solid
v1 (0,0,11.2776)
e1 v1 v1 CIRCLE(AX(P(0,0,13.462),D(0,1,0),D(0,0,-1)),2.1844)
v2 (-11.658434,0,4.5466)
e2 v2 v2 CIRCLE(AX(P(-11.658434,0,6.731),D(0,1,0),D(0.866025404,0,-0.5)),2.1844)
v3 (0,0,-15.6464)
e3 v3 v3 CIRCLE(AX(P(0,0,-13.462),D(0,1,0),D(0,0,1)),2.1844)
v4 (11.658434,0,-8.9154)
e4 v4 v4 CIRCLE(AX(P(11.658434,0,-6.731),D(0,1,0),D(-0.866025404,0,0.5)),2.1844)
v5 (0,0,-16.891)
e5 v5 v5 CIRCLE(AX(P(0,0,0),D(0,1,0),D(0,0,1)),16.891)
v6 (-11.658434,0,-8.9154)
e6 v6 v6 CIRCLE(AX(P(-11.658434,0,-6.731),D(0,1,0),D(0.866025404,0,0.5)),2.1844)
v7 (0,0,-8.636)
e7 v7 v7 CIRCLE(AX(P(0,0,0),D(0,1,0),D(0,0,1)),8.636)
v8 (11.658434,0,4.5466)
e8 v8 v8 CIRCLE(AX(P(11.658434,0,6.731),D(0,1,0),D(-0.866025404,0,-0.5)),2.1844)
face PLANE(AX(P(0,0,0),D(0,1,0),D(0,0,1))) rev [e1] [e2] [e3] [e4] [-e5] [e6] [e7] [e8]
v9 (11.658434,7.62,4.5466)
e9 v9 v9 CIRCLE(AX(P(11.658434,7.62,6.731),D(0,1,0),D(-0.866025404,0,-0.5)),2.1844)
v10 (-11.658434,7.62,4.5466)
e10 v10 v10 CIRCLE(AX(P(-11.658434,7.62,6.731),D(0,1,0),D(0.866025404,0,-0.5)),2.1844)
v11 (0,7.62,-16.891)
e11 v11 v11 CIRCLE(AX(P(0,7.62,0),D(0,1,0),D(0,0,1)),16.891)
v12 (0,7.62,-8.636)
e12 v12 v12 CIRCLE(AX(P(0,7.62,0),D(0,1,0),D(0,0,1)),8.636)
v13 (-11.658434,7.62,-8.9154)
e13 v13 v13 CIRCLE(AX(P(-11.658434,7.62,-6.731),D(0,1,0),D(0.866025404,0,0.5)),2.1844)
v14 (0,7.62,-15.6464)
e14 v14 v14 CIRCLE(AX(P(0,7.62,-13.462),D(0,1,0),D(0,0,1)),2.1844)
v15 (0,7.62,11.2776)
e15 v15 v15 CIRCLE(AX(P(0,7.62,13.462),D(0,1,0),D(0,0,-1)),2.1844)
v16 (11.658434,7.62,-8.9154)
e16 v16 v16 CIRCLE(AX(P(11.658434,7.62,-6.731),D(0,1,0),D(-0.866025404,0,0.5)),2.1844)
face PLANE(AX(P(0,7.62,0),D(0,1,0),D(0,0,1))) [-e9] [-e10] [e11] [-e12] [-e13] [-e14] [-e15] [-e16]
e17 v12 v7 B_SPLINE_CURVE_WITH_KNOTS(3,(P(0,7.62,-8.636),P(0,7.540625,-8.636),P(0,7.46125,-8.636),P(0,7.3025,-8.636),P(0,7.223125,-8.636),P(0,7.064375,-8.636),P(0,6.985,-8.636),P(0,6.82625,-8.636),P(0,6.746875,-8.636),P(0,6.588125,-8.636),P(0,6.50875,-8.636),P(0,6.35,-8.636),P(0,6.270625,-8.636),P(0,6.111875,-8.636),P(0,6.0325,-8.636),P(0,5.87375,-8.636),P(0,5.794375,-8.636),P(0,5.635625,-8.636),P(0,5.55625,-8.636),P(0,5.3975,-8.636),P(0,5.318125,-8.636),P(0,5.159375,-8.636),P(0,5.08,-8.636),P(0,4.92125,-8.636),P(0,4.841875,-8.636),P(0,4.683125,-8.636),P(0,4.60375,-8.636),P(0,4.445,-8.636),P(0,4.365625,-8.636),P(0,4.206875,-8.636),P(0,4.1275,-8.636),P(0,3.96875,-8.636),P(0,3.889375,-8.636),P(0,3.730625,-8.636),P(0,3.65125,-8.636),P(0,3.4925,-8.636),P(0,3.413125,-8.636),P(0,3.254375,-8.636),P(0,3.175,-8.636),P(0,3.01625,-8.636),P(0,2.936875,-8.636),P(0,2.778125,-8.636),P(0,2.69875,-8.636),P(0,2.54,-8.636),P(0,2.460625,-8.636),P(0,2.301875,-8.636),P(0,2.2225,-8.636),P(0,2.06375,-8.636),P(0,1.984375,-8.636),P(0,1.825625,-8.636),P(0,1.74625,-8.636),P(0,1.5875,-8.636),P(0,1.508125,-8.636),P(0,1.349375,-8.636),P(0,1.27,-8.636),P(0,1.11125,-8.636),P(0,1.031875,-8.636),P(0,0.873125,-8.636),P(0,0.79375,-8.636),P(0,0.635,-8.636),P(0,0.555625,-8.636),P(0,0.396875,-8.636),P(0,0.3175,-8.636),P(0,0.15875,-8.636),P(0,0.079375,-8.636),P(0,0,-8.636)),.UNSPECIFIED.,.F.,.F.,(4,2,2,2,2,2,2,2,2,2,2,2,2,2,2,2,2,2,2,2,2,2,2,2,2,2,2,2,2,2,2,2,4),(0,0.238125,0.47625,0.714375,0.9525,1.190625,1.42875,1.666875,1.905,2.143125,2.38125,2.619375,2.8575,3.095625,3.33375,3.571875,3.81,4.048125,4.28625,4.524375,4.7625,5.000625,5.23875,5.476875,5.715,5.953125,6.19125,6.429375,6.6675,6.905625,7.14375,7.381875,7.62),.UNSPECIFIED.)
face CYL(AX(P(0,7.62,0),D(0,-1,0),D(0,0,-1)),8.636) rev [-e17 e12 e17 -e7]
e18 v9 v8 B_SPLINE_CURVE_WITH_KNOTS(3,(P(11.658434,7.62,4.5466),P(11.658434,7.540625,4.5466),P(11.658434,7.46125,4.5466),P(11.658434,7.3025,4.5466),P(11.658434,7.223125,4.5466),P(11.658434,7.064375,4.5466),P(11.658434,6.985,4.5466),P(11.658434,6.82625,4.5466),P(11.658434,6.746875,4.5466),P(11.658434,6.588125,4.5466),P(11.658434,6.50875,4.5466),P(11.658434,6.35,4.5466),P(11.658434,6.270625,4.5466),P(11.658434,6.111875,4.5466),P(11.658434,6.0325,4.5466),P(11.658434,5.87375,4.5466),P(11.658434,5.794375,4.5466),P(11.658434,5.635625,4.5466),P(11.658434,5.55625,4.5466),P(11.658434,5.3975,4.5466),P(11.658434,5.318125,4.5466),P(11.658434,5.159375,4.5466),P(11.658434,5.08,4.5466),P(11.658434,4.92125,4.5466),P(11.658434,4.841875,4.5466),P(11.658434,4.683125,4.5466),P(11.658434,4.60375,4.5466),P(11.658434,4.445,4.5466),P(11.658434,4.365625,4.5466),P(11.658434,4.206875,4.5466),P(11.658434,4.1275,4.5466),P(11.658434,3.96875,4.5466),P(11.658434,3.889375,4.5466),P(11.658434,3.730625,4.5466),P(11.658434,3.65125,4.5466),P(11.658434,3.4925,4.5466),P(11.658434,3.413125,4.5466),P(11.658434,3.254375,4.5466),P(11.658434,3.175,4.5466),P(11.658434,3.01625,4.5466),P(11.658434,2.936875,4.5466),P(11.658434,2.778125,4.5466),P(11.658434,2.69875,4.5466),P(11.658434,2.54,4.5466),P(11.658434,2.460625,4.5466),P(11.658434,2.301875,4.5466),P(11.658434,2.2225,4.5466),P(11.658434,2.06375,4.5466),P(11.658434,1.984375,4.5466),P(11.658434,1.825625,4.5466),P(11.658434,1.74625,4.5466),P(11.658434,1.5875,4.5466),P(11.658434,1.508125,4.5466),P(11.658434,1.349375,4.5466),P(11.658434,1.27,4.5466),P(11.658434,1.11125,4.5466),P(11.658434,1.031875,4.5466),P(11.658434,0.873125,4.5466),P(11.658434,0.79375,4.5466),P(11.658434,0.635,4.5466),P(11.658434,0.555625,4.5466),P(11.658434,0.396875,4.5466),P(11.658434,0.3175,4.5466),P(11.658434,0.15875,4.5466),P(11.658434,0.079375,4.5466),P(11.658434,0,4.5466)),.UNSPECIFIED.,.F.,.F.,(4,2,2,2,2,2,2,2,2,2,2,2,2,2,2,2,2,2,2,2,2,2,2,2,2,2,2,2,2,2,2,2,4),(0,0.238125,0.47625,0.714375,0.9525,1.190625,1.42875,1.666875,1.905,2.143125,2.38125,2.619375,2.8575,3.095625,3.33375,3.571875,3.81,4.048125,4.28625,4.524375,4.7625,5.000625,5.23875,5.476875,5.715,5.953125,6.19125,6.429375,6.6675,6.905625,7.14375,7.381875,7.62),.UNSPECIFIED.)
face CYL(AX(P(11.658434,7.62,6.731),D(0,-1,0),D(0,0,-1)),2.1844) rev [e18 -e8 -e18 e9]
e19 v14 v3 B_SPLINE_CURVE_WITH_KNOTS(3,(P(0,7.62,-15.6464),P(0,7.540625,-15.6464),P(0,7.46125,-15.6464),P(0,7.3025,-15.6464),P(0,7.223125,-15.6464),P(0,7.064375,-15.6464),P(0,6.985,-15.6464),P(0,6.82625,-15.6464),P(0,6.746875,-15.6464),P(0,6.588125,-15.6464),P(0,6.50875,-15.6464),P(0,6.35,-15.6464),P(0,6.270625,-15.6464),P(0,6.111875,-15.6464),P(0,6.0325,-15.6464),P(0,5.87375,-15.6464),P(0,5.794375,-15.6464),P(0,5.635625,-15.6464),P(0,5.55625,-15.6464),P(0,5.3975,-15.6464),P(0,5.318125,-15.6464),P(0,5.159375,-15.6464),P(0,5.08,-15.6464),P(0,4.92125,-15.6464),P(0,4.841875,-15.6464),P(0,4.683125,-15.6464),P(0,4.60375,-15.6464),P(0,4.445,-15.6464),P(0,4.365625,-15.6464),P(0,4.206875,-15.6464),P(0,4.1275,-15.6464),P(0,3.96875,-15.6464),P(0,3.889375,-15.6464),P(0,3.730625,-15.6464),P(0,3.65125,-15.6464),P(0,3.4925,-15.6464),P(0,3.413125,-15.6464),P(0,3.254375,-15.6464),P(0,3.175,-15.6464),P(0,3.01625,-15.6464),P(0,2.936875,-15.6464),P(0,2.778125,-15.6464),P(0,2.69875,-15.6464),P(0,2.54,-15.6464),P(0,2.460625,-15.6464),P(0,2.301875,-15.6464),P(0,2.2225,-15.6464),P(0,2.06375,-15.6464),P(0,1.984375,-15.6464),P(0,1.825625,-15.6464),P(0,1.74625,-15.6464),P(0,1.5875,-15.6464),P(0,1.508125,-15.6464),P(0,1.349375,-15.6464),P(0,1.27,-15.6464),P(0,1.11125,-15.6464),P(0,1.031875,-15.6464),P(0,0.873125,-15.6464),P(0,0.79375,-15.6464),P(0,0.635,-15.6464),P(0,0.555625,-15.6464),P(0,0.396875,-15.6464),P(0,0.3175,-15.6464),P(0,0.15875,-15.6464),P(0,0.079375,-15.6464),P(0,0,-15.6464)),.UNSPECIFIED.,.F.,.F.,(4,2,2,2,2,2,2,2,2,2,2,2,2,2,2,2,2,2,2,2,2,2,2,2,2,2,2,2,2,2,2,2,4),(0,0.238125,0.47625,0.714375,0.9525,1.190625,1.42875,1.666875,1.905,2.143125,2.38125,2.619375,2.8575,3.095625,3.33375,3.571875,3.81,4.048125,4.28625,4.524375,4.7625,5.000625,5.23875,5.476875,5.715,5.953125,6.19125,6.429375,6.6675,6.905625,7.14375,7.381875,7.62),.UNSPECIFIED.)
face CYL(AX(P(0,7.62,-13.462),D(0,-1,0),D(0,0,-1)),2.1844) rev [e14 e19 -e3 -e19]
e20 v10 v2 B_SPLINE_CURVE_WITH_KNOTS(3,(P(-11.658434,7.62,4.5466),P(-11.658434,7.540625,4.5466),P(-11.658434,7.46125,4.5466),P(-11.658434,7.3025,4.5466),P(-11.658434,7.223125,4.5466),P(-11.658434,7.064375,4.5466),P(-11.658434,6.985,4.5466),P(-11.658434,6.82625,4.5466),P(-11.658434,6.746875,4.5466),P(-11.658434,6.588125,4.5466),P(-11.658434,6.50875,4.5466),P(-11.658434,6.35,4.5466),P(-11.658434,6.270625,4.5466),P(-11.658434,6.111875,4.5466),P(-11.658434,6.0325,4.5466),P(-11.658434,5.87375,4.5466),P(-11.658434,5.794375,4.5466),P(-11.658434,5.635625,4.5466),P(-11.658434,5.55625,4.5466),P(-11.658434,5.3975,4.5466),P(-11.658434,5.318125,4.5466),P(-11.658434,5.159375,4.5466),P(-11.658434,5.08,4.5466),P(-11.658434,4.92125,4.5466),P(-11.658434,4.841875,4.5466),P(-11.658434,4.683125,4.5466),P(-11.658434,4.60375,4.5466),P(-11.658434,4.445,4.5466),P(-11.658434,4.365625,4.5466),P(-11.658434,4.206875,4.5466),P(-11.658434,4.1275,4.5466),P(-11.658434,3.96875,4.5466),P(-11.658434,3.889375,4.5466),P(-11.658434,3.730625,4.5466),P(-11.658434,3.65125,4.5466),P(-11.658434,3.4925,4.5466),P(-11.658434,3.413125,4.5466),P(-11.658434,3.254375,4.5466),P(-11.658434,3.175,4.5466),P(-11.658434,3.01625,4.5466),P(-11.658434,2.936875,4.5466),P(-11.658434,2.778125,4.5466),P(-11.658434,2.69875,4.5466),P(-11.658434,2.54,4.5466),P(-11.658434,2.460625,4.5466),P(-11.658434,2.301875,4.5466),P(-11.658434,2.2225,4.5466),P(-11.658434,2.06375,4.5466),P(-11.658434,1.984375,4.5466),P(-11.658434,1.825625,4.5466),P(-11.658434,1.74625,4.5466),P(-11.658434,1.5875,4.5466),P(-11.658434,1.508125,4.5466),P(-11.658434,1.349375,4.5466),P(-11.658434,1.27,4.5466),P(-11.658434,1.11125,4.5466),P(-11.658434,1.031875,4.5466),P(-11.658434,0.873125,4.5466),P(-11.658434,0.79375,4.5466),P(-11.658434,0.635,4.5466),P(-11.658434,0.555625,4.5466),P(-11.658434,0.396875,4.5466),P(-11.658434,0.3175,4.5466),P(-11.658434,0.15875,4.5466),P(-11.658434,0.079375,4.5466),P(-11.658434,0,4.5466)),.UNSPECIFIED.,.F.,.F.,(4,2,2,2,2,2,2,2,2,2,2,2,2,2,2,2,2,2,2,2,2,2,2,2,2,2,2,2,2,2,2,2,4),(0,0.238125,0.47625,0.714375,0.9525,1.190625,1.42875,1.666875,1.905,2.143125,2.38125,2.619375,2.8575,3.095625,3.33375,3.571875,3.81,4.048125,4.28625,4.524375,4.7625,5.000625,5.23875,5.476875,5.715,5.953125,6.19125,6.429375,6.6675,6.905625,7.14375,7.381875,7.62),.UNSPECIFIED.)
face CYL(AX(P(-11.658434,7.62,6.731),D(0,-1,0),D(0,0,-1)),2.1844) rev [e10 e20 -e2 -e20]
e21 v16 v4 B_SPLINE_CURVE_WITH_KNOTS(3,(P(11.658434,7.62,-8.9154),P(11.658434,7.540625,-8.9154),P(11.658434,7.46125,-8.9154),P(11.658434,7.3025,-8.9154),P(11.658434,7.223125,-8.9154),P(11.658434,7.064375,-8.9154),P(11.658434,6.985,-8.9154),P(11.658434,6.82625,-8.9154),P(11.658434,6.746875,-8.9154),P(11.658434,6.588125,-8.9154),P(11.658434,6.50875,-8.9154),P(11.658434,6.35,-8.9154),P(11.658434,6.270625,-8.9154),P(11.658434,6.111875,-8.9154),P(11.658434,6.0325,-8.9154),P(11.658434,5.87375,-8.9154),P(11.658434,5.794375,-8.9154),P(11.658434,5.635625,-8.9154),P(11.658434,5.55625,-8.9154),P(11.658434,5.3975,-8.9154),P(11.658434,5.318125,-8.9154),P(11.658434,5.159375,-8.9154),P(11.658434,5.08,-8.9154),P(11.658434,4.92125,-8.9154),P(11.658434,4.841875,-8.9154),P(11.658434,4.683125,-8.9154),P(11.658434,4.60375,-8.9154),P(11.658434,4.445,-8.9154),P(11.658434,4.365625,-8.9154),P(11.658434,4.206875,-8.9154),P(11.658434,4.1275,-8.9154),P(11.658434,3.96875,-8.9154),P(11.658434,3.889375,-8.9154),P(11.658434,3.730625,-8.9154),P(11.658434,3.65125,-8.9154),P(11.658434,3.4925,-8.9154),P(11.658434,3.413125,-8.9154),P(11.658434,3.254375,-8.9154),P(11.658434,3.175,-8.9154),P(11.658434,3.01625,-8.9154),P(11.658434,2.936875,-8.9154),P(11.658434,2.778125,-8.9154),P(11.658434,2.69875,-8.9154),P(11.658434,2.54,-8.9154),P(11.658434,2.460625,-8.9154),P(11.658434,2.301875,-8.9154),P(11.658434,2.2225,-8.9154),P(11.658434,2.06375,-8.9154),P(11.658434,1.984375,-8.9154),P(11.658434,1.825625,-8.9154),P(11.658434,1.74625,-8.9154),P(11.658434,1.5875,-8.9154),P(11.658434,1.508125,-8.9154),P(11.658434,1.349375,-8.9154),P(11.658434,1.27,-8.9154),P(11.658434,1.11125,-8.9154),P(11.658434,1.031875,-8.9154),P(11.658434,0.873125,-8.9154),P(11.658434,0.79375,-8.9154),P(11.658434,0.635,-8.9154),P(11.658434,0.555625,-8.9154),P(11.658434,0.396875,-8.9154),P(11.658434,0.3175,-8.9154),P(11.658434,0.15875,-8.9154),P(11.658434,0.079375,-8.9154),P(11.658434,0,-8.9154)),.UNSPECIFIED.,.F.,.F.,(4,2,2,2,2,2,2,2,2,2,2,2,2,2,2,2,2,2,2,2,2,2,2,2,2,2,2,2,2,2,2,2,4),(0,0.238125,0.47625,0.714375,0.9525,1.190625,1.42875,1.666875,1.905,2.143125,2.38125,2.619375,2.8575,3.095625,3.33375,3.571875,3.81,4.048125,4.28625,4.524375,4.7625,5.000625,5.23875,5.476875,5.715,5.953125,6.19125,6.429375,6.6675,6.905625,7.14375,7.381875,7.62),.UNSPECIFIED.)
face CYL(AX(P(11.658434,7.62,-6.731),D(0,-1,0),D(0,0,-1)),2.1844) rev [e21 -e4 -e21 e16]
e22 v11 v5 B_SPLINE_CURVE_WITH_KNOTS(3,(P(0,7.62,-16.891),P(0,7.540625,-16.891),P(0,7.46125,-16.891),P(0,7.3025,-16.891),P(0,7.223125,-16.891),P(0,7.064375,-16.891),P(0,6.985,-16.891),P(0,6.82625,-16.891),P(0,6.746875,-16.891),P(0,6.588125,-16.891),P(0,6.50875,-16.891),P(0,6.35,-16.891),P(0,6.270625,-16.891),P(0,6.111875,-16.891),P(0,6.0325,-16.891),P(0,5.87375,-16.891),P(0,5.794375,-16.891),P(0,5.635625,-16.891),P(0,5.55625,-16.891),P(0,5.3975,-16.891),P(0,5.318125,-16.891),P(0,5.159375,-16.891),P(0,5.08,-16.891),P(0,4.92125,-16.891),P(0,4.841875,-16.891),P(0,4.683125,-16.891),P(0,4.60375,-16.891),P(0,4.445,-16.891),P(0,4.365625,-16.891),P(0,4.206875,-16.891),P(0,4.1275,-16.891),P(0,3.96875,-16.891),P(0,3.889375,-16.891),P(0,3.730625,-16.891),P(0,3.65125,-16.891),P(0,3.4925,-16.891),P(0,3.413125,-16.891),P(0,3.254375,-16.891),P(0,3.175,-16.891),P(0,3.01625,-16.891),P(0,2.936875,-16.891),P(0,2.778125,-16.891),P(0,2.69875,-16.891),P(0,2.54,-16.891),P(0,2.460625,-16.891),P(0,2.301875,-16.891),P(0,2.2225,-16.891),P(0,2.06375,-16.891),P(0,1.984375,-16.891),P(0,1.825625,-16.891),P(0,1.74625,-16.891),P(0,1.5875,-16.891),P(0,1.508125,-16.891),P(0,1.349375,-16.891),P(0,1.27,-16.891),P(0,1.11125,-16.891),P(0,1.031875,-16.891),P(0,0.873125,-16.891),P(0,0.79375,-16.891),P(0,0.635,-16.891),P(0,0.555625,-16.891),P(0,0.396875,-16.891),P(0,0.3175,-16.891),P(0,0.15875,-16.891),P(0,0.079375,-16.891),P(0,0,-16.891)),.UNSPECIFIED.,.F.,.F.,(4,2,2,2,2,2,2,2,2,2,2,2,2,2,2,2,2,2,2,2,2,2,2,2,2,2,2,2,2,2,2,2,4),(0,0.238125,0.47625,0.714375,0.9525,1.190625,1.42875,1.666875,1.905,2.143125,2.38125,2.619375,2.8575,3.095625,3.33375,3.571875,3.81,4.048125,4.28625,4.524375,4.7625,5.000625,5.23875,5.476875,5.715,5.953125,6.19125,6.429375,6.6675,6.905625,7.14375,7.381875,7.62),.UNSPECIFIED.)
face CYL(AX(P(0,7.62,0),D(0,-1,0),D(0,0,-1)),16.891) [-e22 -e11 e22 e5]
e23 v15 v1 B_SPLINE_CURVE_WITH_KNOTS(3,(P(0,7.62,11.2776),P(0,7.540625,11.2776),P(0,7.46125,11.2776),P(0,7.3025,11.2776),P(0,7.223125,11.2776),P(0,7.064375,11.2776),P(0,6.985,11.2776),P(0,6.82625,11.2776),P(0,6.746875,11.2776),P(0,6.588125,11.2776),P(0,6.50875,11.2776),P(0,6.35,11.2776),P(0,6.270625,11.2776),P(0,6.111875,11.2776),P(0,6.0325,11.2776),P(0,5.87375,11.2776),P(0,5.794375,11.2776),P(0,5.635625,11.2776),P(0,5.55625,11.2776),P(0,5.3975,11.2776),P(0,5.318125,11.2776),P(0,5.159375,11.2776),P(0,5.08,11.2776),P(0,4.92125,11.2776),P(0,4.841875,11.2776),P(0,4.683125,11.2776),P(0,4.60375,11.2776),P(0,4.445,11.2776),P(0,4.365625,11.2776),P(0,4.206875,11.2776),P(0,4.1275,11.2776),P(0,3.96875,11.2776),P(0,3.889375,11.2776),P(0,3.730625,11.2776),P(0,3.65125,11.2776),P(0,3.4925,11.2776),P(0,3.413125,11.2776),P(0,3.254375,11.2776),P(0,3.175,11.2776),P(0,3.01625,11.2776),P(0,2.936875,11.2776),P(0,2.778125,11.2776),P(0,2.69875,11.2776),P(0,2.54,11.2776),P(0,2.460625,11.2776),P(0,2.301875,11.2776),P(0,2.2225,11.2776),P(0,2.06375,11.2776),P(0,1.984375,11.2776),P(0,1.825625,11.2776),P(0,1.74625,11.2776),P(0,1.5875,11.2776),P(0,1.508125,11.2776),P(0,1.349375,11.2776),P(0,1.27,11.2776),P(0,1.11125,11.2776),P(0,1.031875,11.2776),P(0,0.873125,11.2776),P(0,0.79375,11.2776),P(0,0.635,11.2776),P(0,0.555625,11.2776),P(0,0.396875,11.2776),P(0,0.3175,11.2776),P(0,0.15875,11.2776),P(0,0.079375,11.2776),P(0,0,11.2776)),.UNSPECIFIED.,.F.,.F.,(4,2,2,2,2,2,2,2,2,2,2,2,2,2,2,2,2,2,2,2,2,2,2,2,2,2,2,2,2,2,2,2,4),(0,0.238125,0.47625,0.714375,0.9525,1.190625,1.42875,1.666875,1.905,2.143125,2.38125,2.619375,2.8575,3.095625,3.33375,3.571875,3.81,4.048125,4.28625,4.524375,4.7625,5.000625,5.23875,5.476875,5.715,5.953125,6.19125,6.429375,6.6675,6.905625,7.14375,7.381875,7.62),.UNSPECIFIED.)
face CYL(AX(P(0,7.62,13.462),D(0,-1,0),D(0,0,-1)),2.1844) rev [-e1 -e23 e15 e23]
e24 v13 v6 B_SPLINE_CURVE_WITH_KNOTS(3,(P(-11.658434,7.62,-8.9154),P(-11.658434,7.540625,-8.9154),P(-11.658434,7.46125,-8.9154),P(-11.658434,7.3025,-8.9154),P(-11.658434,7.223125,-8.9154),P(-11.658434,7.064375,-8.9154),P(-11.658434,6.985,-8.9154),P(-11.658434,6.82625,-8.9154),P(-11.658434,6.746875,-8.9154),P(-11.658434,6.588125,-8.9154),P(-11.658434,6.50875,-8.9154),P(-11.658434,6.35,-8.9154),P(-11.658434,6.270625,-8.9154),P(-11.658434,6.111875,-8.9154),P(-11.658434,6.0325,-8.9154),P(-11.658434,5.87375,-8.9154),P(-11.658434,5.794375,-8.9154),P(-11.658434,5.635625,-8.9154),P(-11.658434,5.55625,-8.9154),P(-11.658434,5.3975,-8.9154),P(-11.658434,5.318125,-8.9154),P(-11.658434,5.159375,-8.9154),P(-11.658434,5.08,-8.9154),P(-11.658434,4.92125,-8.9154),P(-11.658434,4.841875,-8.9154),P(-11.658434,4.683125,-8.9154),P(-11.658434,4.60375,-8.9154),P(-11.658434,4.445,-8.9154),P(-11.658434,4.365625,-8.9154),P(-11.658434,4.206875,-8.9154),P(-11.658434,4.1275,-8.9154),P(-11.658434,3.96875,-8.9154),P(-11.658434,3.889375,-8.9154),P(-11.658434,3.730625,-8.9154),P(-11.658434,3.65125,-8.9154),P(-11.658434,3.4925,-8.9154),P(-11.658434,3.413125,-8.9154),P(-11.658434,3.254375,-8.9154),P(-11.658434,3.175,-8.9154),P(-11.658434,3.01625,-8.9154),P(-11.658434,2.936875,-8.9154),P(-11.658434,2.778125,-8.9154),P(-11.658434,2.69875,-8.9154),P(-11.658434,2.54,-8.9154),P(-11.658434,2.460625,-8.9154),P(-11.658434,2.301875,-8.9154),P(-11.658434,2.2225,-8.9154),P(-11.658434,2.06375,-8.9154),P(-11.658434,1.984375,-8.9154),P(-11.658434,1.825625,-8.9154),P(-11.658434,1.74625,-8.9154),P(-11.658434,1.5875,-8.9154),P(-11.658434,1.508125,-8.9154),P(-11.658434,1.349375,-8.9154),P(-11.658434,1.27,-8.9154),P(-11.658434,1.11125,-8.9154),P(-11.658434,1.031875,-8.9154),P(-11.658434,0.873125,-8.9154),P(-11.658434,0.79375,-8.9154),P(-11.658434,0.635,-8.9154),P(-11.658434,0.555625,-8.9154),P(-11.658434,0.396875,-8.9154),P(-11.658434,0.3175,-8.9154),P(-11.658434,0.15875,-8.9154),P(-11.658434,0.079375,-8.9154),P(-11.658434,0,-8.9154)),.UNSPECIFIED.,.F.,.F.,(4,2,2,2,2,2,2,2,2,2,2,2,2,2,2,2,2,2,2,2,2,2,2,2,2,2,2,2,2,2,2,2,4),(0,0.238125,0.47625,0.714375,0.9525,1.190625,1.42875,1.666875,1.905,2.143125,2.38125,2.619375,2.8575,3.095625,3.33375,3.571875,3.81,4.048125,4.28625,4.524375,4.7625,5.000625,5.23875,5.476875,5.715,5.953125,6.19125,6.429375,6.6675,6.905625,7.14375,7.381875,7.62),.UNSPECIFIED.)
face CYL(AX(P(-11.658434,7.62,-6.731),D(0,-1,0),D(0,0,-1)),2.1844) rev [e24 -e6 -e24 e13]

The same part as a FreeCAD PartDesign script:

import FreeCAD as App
import Part
import Sketcher

V = App.Vector
Q = App.Units.Quantity

doc = App.newDocument("Part")
body = doc.addObject("PartDesign::Body", "Body")

# Sketch on XZ plane
sketch1 = doc.addObject("Sketcher::SketchObject", "Sketch")
body.addObject(sketch1)
sketch1.AttachmentSupport = (doc.XZ_Plane, [""])
sketch1.MapMode = "FlatFace"
sketch1.addGeometry(Part.Circle(V(0, 0, 0), V(0, 0, 1), 17), False)
sketch1.addConstraint(Sketcher.Constraint("Coincident", 0, 3, -1, 1))
sketch1.addConstraint(Sketcher.Constraint("Diameter", 0, Q("1.33 in")))
pad1 = doc.addObject("PartDesign::Pad", "Pad")
body.addObject(pad1)
pad1.Profile = sketch1
pad1.Length = Q("0.3 in")
pad1.Reversed = True

# Sketch on XZ plane
sketch2 = doc.addObject("Sketcher::SketchObject", "Sketch001")
body.addObject(sketch2)
sketch2.AttachmentSupport = (doc.XZ_Plane, [""])
sketch2.MapMode = "FlatFace"
sketch2.addGeometry(Part.Circle(V(0, 0, 0), V(0, 0, 1), 9), False)
sketch2.addConstraint(Sketcher.Constraint("Coincident", 0, 3, -1, 1))
sketch2.addConstraint(Sketcher.Constraint("Diameter", 0, Q("0.68 in")))
pocket1 = doc.addObject("PartDesign::Pocket", "Pocket")
body.addObject(pocket1)
pocket1.Profile = sketch2
pocket1.Type = "ThroughAll"

# Sketch on XZ plane
sketch3 = doc.addObject("Sketcher::SketchObject", "Sketch002")
body.addObject(sketch3)
sketch3.AttachmentSupport = (doc.XZ_Plane, [""])
sketch3.MapMode = "FlatFace"
sketch3.addGeometry(Part.Circle(V(0, -13.5, 0), V(0, 0, 1), 2.2), False)
sketch3.addConstraint(Sketcher.Constraint("PointOnObject", 0, 3, -2))
sketch3.addConstraint(Sketcher.Constraint("Diameter", 0, Q("0.172 in")))
sketch3.addConstraint(Sketcher.Constraint("DistanceY", 0, 3, -1, 1, Q("0.53 in")))
pocket2 = doc.addObject("PartDesign::Pocket", "Pocket001")
body.addObject(pocket2)
pocket2.Profile = sketch3
pocket2.Length = Q("0.3 in")
doc.recompute()

polarpattern = doc.addObject("PartDesign::PolarPattern", "PolarPattern")
body.addObject(polarpattern)
polarpattern.Originals = [pocket2]
polarpattern.Axis = (doc.Y_Axis, [""])
polarpattern.Angle = 360
polarpattern.Occurrences = 6
body.Tip = polarpattern

doc.recompute()
